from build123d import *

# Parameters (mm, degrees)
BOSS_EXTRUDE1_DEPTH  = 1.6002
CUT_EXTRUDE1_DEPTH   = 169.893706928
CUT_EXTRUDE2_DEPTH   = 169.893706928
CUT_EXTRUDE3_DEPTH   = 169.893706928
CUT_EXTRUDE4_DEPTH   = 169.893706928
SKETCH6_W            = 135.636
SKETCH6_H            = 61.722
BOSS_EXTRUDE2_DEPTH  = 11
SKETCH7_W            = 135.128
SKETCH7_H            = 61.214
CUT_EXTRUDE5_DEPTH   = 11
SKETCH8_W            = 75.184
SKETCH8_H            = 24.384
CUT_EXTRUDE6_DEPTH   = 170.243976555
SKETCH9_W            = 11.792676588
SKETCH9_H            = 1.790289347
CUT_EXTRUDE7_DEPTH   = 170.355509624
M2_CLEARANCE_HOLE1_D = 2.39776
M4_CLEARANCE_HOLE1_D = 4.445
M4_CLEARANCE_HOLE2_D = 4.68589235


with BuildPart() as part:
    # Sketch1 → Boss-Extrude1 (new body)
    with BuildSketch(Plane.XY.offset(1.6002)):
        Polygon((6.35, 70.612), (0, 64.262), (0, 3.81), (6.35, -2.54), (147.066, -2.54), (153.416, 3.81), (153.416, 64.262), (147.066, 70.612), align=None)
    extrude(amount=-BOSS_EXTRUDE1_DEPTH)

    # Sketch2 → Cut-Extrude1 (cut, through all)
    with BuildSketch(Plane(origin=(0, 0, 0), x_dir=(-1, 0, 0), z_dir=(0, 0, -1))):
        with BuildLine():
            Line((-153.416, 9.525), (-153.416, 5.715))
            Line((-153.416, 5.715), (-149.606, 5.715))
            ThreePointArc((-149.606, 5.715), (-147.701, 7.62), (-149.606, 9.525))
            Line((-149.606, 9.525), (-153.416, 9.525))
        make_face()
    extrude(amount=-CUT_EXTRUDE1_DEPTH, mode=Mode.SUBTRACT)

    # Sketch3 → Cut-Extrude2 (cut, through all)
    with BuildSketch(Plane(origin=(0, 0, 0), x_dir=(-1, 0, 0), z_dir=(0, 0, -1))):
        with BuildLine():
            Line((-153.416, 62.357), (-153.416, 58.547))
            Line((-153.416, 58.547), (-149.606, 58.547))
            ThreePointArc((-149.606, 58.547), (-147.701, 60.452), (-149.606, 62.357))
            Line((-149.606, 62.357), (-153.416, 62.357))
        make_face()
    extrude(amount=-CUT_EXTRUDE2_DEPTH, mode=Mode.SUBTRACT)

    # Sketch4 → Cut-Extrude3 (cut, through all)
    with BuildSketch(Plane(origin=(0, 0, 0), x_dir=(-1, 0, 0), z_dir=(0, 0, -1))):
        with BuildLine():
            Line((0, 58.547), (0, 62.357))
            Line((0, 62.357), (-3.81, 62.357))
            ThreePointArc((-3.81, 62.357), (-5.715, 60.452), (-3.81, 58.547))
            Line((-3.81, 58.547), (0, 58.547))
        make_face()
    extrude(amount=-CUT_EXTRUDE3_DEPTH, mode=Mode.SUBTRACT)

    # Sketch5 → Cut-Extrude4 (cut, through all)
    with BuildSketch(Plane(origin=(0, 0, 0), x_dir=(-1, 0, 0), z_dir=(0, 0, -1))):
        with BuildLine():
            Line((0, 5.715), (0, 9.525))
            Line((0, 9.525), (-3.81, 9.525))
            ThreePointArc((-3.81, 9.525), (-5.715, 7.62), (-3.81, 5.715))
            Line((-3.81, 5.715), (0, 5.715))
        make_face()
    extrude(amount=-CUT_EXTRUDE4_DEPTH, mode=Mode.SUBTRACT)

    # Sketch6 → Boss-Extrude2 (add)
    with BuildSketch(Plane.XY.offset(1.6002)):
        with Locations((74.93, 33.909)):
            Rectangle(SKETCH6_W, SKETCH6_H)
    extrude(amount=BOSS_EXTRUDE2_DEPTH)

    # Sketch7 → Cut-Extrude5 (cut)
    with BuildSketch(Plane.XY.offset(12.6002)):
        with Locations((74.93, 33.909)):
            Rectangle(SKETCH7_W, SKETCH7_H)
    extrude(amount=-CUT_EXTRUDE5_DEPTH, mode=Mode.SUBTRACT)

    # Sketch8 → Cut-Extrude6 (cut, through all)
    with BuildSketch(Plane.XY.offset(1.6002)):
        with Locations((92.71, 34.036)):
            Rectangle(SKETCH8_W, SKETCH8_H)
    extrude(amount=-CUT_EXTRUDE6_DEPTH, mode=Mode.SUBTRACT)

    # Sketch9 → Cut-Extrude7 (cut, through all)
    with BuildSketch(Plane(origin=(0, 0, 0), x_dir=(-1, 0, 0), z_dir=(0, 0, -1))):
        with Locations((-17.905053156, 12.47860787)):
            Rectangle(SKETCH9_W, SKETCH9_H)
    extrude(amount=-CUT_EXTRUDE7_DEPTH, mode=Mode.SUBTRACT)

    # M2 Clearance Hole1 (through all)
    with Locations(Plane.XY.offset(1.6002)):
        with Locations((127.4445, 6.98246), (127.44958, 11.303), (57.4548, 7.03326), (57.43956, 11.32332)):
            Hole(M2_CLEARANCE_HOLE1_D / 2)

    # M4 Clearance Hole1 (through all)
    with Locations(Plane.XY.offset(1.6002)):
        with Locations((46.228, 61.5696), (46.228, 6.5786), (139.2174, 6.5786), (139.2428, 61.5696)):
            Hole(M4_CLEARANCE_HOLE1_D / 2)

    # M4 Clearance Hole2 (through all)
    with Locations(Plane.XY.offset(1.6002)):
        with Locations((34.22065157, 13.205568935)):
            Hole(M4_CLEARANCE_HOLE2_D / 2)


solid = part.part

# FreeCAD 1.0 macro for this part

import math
import FreeCAD as App
import Part
import Sketcher
Q = App.Units.Quantity

doc = App.newDocument("Part")
body = doc.addObject("PartDesign::Body", "Body")

# Sketch on XY plane
sketch1 = body.newObject("Sketcher::SketchObject", "Sketch")
sketch1.AttachmentSupport = (doc.getObject("XY_Plane"), [""])
sketch1.MapMode = "FlatFace"
sketch1.AttachmentOffset = App.Placement(App.Vector(0, 0, 0.063 * 25.4), App.Rotation())
sketch1.addGeometry(Part.LineSegment(App.Vector(6, 71, 0), App.Vector(0, 64, 0)), False)
sketch1.addGeometry(Part.LineSegment(App.Vector(0, 64, 0), App.Vector(0, 4, 0)), False)
sketch1.addGeometry(Part.LineSegment(App.Vector(0, 4, 0), App.Vector(6, -3, 0)), False)
sketch1.addGeometry(Part.LineSegment(App.Vector(6, -3, 0), App.Vector(147, -3, 0)), False)
sketch1.addGeometry(Part.LineSegment(App.Vector(147, -3, 0), App.Vector(153, 4, 0)), False)
sketch1.addGeometry(Part.LineSegment(App.Vector(153, 4, 0), App.Vector(153, 64, 0)), False)
sketch1.addGeometry(Part.LineSegment(App.Vector(153, 64, 0), App.Vector(147, 71, 0)), False)
sketch1.addGeometry(Part.LineSegment(App.Vector(147, 71, 0), App.Vector(6, 71, 0)), False)
sketch1.addConstraint(Sketcher.Constraint("Coincident", 0, 2, 1, 1))
sketch1.addConstraint(Sketcher.Constraint("Coincident", 1, 2, 2, 1))
sketch1.addConstraint(Sketcher.Constraint("Coincident", 2, 2, 3, 1))
sketch1.addConstraint(Sketcher.Constraint("Coincident", 3, 2, 4, 1))
sketch1.addConstraint(Sketcher.Constraint("Coincident", 4, 2, 5, 1))
sketch1.addConstraint(Sketcher.Constraint("Coincident", 5, 2, 6, 1))
sketch1.addConstraint(Sketcher.Constraint("Coincident", 6, 2, 7, 1))
sketch1.addConstraint(Sketcher.Constraint("Coincident", 7, 2, 0, 1))
sketch1.addConstraint(Sketcher.Constraint("Vertical", 1))
sketch1.addConstraint(Sketcher.Constraint("Horizontal", 3))
sketch1.addConstraint(Sketcher.Constraint("Vertical", 5))
sketch1.addConstraint(Sketcher.Constraint("Horizontal", 7))
sketch1.addConstraint(Sketcher.Constraint("PointOnObject", 0, 2, -2))
sketch1.addConstraint(Sketcher.Constraint("Perpendicular", 0, 2))
sketch1.addConstraint(Sketcher.Constraint("Perpendicular", 2, 4))
sketch1.addConstraint(Sketcher.Constraint("Perpendicular", 4, 6))
sketch1.addConstraint(Sketcher.Constraint("Horizontal", 1, 2, 4, 2))
sketch1.addConstraint(Sketcher.Constraint("Horizontal", 0, 2, 5, 2))
sketch1.addConstraint(Sketcher.Constraint("Vertical", 3, 2, 6, 2))
sketch1.addConstraint(Sketcher.Constraint("Vertical", 2, 2, 7, 2))
sketch1.addConstraint(Sketcher.Constraint("DistanceX", 3, 1, 3, 2, Q("5.54 in")))
sketch1.addConstraint(Sketcher.Constraint("DistanceY", 1, 2, 1, 1, Q("2.38 in")))
sketch1.addConstraint(Sketcher.Constraint("DistanceY", 2, 2, -1, 1, Q("0.1 in")))
sketch1.addConstraint(Sketcher.Constraint("DistanceY", -1, 1, 0, 2, Q("2.53 in")))
pad1 = body.newObject("PartDesign::Pad", "Pad")
pad1.Profile = sketch1
pad1.Length = Q("0.063 in")
pad1.Reversed = True

# Sketch on XY plane
sketch2 = body.newObject("Sketcher::SketchObject", "Sketch001")
sketch2.AttachmentSupport = (doc.getObject("XY_Plane"), [""])
sketch2.MapMode = "FlatFace"
sketch2.addGeometry(Part.LineSegment(App.Vector(153.4, 9.5, 0), App.Vector(153.4, 5.7, 0)), False)
sketch2.addGeometry(Part.LineSegment(App.Vector(153.4, 5.7, 0), App.Vector(149.6, 5.7, 0)), False)
sketch2.addGeometry(Part.ArcOfCircle(Part.Circle(App.Vector(149.6, 7.6, 0), App.Vector(0, 0, 1), 1.9), math.radians(90), math.radians(270)), False)
sketch2.addGeometry(Part.LineSegment(App.Vector(149.6, 9.5, 0), App.Vector(153.4, 9.5, 0)), False)
sketch2.addConstraint(Sketcher.Constraint("Coincident", 0, 2, 1, 1))
sketch2.addConstraint(Sketcher.Constraint("Tangent", 1, 2, 2, 2))
sketch2.addConstraint(Sketcher.Constraint("Tangent", 2, 1, 3, 1))
sketch2.addConstraint(Sketcher.Constraint("Coincident", 3, 2, 0, 1))
sketch2.addConstraint(Sketcher.Constraint("Vertical", 0))
sketch2.addConstraint(Sketcher.Constraint("Horizontal", 1))
sketch2.addConstraint(Sketcher.Constraint("Horizontal", 3))
sketch2.addConstraint(Sketcher.Constraint("Equal", 3, 0))
sketch2.addConstraint(Sketcher.Constraint("Radius", 2, Q("0.075 in")))
sketch2.addConstraint(Sketcher.Constraint("DistanceY", -1, 1, 2, 3, Q("0.3 in")))
sketch2.addConstraint(Sketcher.Constraint("DistanceX", -1, 1, 2, 3, Q("5.89 in")))
pocket1 = body.newObject("PartDesign::Pocket", "Pocket")
pocket1.Profile = sketch2
pocket1.Type = "ThroughAll"
pocket1.Reversed = True

# Sketch on XY plane
sketch3 = body.newObject("Sketcher::SketchObject", "Sketch002")
sketch3.AttachmentSupport = (doc.getObject("XY_Plane"), [""])
sketch3.MapMode = "FlatFace"
sketch3.addGeometry(Part.LineSegment(App.Vector(153.4, 62.4, 0), App.Vector(153.4, 58.5, 0)), False)
sketch3.addGeometry(Part.LineSegment(App.Vector(153.4, 58.5, 0), App.Vector(149.6, 58.5, 0)), False)
sketch3.addGeometry(Part.ArcOfCircle(Part.Circle(App.Vector(149.6, 60.5, 0), App.Vector(0, 0, 1), 1.9), math.radians(90), math.radians(270)), False)
sketch3.addGeometry(Part.LineSegment(App.Vector(149.6, 62.4, 0), App.Vector(153.4, 62.4, 0)), False)
sketch3.addConstraint(Sketcher.Constraint("Coincident", 0, 2, 1, 1))
sketch3.addConstraint(Sketcher.Constraint("Tangent", 1, 2, 2, 2))
sketch3.addConstraint(Sketcher.Constraint("Tangent", 2, 1, 3, 1))
sketch3.addConstraint(Sketcher.Constraint("Coincident", 3, 2, 0, 1))
sketch3.addConstraint(Sketcher.Constraint("Vertical", 0))
sketch3.addConstraint(Sketcher.Constraint("Horizontal", 1))
sketch3.addConstraint(Sketcher.Constraint("Horizontal", 3))
sketch3.addConstraint(Sketcher.Constraint("Equal", 3, 0))
sketch3.addConstraint(Sketcher.Constraint("Radius", 2, Q("0.075 in")))
sketch3.addConstraint(Sketcher.Constraint("DistanceX", -1, 1, 2, 3, Q("5.89 in")))
sketch3.addConstraint(Sketcher.Constraint("DistanceY", -1, 1, 2, 3, Q("2.38 in")))
pocket2 = body.newObject("PartDesign::Pocket", "Pocket001")
pocket2.Profile = sketch3
pocket2.Type = "ThroughAll"
pocket2.Reversed = True

# Sketch on XY plane
sketch4 = body.newObject("Sketcher::SketchObject", "Sketch003")
sketch4.AttachmentSupport = (doc.getObject("XY_Plane"), [""])
sketch4.MapMode = "FlatFace"
sketch4.addGeometry(Part.LineSegment(App.Vector(0, 58.5, 0), App.Vector(0, 62.4, 0)), False)
sketch4.addGeometry(Part.LineSegment(App.Vector(0, 62.4, 0), App.Vector(3.8, 62.4, 0)), False)
sketch4.addGeometry(Part.ArcOfCircle(Part.Circle(App.Vector(3.8, 60.5, 0), App.Vector(0, 0, 1), 1.9), math.radians(-90), math.radians(90)), False)
sketch4.addGeometry(Part.LineSegment(App.Vector(3.8, 58.5, 0), App.Vector(0, 58.5, 0)), False)
sketch4.addConstraint(Sketcher.Constraint("Coincident", 0, 2, 1, 1))
sketch4.addConstraint(Sketcher.Constraint("Tangent", 1, 2, 2, 2))
sketch4.addConstraint(Sketcher.Constraint("Tangent", 2, 1, 3, 1))
sketch4.addConstraint(Sketcher.Constraint("Coincident", 3, 2, 0, 1))
sketch4.addConstraint(Sketcher.Constraint("Vertical", 0))
sketch4.addConstraint(Sketcher.Constraint("Horizontal", 1))
sketch4.addConstraint(Sketcher.Constraint("Horizontal", 3))
sketch4.addConstraint(Sketcher.Constraint("PointOnObject", 0, 2, -2))
sketch4.addConstraint(Sketcher.Constraint("Equal", 3, 0))
sketch4.addConstraint(Sketcher.Constraint("Radius", 2, Q("0.075 in")))
sketch4.addConstraint(Sketcher.Constraint("DistanceY", -1, 1, 2, 3, Q("2.38 in")))
pocket3 = body.newObject("PartDesign::Pocket", "Pocket002")
pocket3.Profile = sketch4
pocket3.Type = "ThroughAll"
pocket3.Reversed = True

# Sketch on XY plane
sketch5 = body.newObject("Sketcher::SketchObject", "Sketch004")
sketch5.AttachmentSupport = (doc.getObject("XY_Plane"), [""])
sketch5.MapMode = "FlatFace"
sketch5.addGeometry(Part.LineSegment(App.Vector(0, 5.7, 0), App.Vector(0, 9.5, 0)), False)
sketch5.addGeometry(Part.LineSegment(App.Vector(0, 9.5, 0), App.Vector(3.8, 9.5, 0)), False)
sketch5.addGeometry(Part.ArcOfCircle(Part.Circle(App.Vector(3.8, 7.6, 0), App.Vector(0, 0, 1), 1.9), math.radians(-90), math.radians(90)), False)
sketch5.addGeometry(Part.LineSegment(App.Vector(3.8, 5.7, 0), App.Vector(0, 5.7, 0)), False)
sketch5.addConstraint(Sketcher.Constraint("Coincident", 0, 2, 1, 1))
sketch5.addConstraint(Sketcher.Constraint("Tangent", 1, 2, 2, 2))
sketch5.addConstraint(Sketcher.Constraint("Tangent", 2, 1, 3, 1))
sketch5.addConstraint(Sketcher.Constraint("Coincident", 3, 2, 0, 1))
sketch5.addConstraint(Sketcher.Constraint("Vertical", 0))
sketch5.addConstraint(Sketcher.Constraint("Horizontal", 1))
sketch5.addConstraint(Sketcher.Constraint("Horizontal", 3))
sketch5.addConstraint(Sketcher.Constraint("PointOnObject", 0, 2, -2))
sketch5.addConstraint(Sketcher.Constraint("Equal", 3, 0))
sketch5.addConstraint(Sketcher.Constraint("Radius", 2, Q("0.075 in")))
sketch5.addConstraint(Sketcher.Constraint("DistanceY", -1, 1, 2, 3, Q("0.3 in")))
pocket4 = body.newObject("PartDesign::Pocket", "Pocket003")
pocket4.Profile = sketch5
pocket4.Type = "ThroughAll"
pocket4.Reversed = True

# Sketch on XY plane
sketch6 = body.newObject("Sketcher::SketchObject", "Sketch005")
sketch6.AttachmentSupport = (doc.getObject("XY_Plane"), [""])
sketch6.MapMode = "FlatFace"
sketch6.AttachmentOffset = App.Placement(App.Vector(0, 0, 0.063 * 25.4), App.Rotation())
sketch6.addGeometry(Part.LineSegment(App.Vector(7, 65, 0), App.Vector(7, 3, 0)), False)
sketch6.addGeometry(Part.LineSegment(App.Vector(7, 3, 0), App.Vector(143, 3, 0)), False)
sketch6.addGeometry(Part.LineSegment(App.Vector(143, 3, 0), App.Vector(143, 65, 0)), False)
sketch6.addGeometry(Part.LineSegment(App.Vector(143, 65, 0), App.Vector(7, 65, 0)), False)
sketch6.addConstraint(Sketcher.Constraint("Coincident", 0, 2, 1, 1))
sketch6.addConstraint(Sketcher.Constraint("Coincident", 1, 2, 2, 1))
sketch6.addConstraint(Sketcher.Constraint("Coincident", 2, 2, 3, 1))
sketch6.addConstraint(Sketcher.Constraint("Coincident", 3, 2, 0, 1))
sketch6.addConstraint(Sketcher.Constraint("Vertical", 0))
sketch6.addConstraint(Sketcher.Constraint("Horizontal", 1))
sketch6.addConstraint(Sketcher.Constraint("Vertical", 2))
sketch6.addConstraint(Sketcher.Constraint("Horizontal", 3))
sketch6.addConstraint(Sketcher.Constraint("DistanceX", 1, 1, 1, 2, Q("5.34 in")))
sketch6.addConstraint(Sketcher.Constraint("DistanceY", 0, 2, 0, 1, Q("2.43 in")))
sketch6.addConstraint(Sketcher.Constraint("DistanceX", -1, 1, 0, 2, Q("0.28 in")))
sketch6.addConstraint(Sketcher.Constraint("DistanceY", -1, 1, 0, 2, Q("0.12 in")))
pad2 = body.newObject("PartDesign::Pad", "Pad001")
pad2.Profile = sketch6
pad2.Length = 11

# Sketch on XY plane
sketch7 = body.newObject("Sketcher::SketchObject", "Sketch006")
sketch7.AttachmentSupport = (doc.getObject("XY_Plane"), [""])
sketch7.MapMode = "FlatFace"
sketch7.AttachmentOffset = App.Placement(App.Vector(0, 0, 12.6002), App.Rotation())
sketch7.addGeometry(Part.LineSegment(App.Vector(7, 65, 0), App.Vector(7, 3, 0)), False)
sketch7.addGeometry(Part.LineSegment(App.Vector(7, 3, 0), App.Vector(142, 3, 0)), False)
sketch7.addGeometry(Part.LineSegment(App.Vector(142, 3, 0), App.Vector(142, 65, 0)), False)
sketch7.addGeometry(Part.LineSegment(App.Vector(142, 65, 0), App.Vector(7, 65, 0)), False)
sketch7.addConstraint(Sketcher.Constraint("Coincident", 0, 2, 1, 1))
sketch7.addConstraint(Sketcher.Constraint("Coincident", 1, 2, 2, 1))
sketch7.addConstraint(Sketcher.Constraint("Coincident", 2, 2, 3, 1))
sketch7.addConstraint(Sketcher.Constraint("Coincident", 3, 2, 0, 1))
sketch7.addConstraint(Sketcher.Constraint("Vertical", 0))
sketch7.addConstraint(Sketcher.Constraint("Horizontal", 1))
sketch7.addConstraint(Sketcher.Constraint("Vertical", 2))
sketch7.addConstraint(Sketcher.Constraint("Horizontal", 3))
sketch7.addConstraint(Sketcher.Constraint("DistanceX", 1, 1, 1, 2, Q("5.32 in")))
sketch7.addConstraint(Sketcher.Constraint("DistanceY", 0, 2, 0, 1, Q("2.41 in")))
sketch7.addConstraint(Sketcher.Constraint("DistanceX", -1, 1, 0, 2, Q("0.29 in")))
sketch7.addConstraint(Sketcher.Constraint("DistanceY", -1, 1, 0, 2, Q("0.13 in")))
pocket5 = body.newObject("PartDesign::Pocket", "Pocket004")
pocket5.Profile = sketch7
pocket5.Length = 11

# Sketch on XY plane
sketch8 = body.newObject("Sketcher::SketchObject", "Sketch007")
sketch8.AttachmentSupport = (doc.getObject("XY_Plane"), [""])
sketch8.MapMode = "FlatFace"
sketch8.AttachmentOffset = App.Placement(App.Vector(0, 0, 0.063 * 25.4), App.Rotation())
sketch8.addGeometry(Part.LineSegment(App.Vector(55, 46, 0), App.Vector(55, 22, 0)), False)
sketch8.addGeometry(Part.LineSegment(App.Vector(55, 22, 0), App.Vector(130, 22, 0)), False)
sketch8.addGeometry(Part.LineSegment(App.Vector(130, 22, 0), App.Vector(130, 46, 0)), False)
sketch8.addGeometry(Part.LineSegment(App.Vector(130, 46, 0), App.Vector(55, 46, 0)), False)
sketch8.addConstraint(Sketcher.Constraint("Coincident", 0, 2, 1, 1))
sketch8.addConstraint(Sketcher.Constraint("Coincident", 1, 2, 2, 1))
sketch8.addConstraint(Sketcher.Constraint("Coincident", 2, 2, 3, 1))
sketch8.addConstraint(Sketcher.Constraint("Coincident", 3, 2, 0, 1))
sketch8.addConstraint(Sketcher.Constraint("Vertical", 0))
sketch8.addConstraint(Sketcher.Constraint("Horizontal", 1))
sketch8.addConstraint(Sketcher.Constraint("Vertical", 2))
sketch8.addConstraint(Sketcher.Constraint("Horizontal", 3))
sketch8.addConstraint(Sketcher.Constraint("DistanceX", 1, 1, 1, 2, Q("2.96 in")))
sketch8.addConstraint(Sketcher.Constraint("DistanceY", 0, 2, 0, 1, Q("0.96 in")))
sketch8.addConstraint(Sketcher.Constraint("DistanceX", -1, 1, 0, 2, Q("2.17 in")))
sketch8.addConstraint(Sketcher.Constraint("DistanceY", -1, 1, 0, 2, Q("0.86 in")))
pocket6 = body.newObject("PartDesign::Pocket", "Pocket005")
pocket6.Profile = sketch8
pocket6.Type = "ThroughAll"

# Sketch on XY plane
sketch9 = body.newObject("Sketcher::SketchObject", "Sketch008")
sketch9.AttachmentSupport = (doc.getObject("XY_Plane"), [""])
sketch9.MapMode = "FlatFace"
sketch9.addGeometry(Part.LineSegment(App.Vector(23.8, 13.4, 0), App.Vector(23.8, 11.6, 0)), False)
sketch9.addGeometry(Part.LineSegment(App.Vector(23.8, 11.6, 0), App.Vector(12, 11.6, 0)), False)
sketch9.addGeometry(Part.LineSegment(App.Vector(12, 11.6, 0), App.Vector(12, 13.4, 0)), False)
sketch9.addGeometry(Part.LineSegment(App.Vector(12, 13.4, 0), App.Vector(23.8, 13.4, 0)), False)
sketch9.addConstraint(Sketcher.Constraint("Coincident", 0, 2, 1, 1))
sketch9.addConstraint(Sketcher.Constraint("Coincident", 1, 2, 2, 1))
sketch9.addConstraint(Sketcher.Constraint("Coincident", 2, 2, 3, 1))
sketch9.addConstraint(Sketcher.Constraint("Coincident", 3, 2, 0, 1))
sketch9.addConstraint(Sketcher.Constraint("Vertical", 0))
sketch9.addConstraint(Sketcher.Constraint("Horizontal", 1))
sketch9.addConstraint(Sketcher.Constraint("Vertical", 2))
sketch9.addConstraint(Sketcher.Constraint("Horizontal", 3))
sketch9.addConstraint(Sketcher.Constraint("DistanceY", 0, 2, 0, 1, 1.790289))
sketch9.addConstraint(Sketcher.Constraint("DistanceX", 1, 2, 1, 1, 11.792677))
sketch9.addConstraint(Sketcher.Constraint("DistanceX", -1, 1, 0, 2, 23.801391))
sketch9.addConstraint(Sketcher.Constraint("DistanceY", -1, 1, 0, 2, 11.583463))
pocket7 = body.newObject("PartDesign::Pocket", "Pocket006")
pocket7.Profile = sketch9
pocket7.Type = "ThroughAll"
pocket7.Reversed = True

# Sketch on XY plane
sketch10 = body.newObject("Sketcher::SketchObject", "Sketch009")
sketch10.AttachmentSupport = (doc.getObject("XY_Plane"), [""])
sketch10.MapMode = "FlatFace"
sketch10.AttachmentOffset = App.Placement(App.Vector(0, 0, 0.063 * 25.4), App.Rotation())
sketch10.addGeometry(Part.Circle(App.Vector(127.4, 7, 0), App.Vector(0, 0, 1), 1.2), False)
sketch10.addGeometry(Part.Circle(App.Vector(127.4, 11.3, 0), App.Vector(0, 0, 1), 1.2), False)
sketch10.addGeometry(Part.Circle(App.Vector(57.5, 7, 0), App.Vector(0, 0, 1), 1.2), False)
sketch10.addGeometry(Part.Circle(App.Vector(57.4, 11.3, 0), App.Vector(0, 0, 1), 1.2), False)
sketch10.addConstraint(Sketcher.Constraint("Equal", 0, 1))
sketch10.addConstraint(Sketcher.Constraint("Equal", 1, 2))
sketch10.addConstraint(Sketcher.Constraint("Equal", 2, 3))
sketch10.addConstraint(Sketcher.Constraint("Diameter", 0, Q("0.0944 in")))
sketch10.addConstraint(Sketcher.Constraint("DistanceY", -1, 1, 1, 3, Q("0.445 in")))
sketch10.addConstraint(Sketcher.Constraint("DistanceX", -1, 1, 2, 3, Q("2.262 in")))
sketch10.addConstraint(Sketcher.Constraint("DistanceY", 0, 3, 2, 3, Q("0.002 in")))
sketch10.addConstraint(Sketcher.Constraint("DistanceX", -1, 1, 0, 3, Q("5.0175 in")))
sketch10.addConstraint(Sketcher.Constraint("DistanceY", -1, 1, 0, 3, Q("0.2749 in")))
sketch10.addConstraint(Sketcher.Constraint("DistanceX", -1, 1, 1, 3, Q("5.0177 in")))
sketch10.addConstraint(Sketcher.Constraint("DistanceX", -1, 1, 3, 3, Q("2.2614 in")))
sketch10.addConstraint(Sketcher.Constraint("DistanceY", -1, 1, 3, 3, Q("0.4458 in")))
doc.recompute()
hole = body.newObject("PartDesign::Hole", "Hole")
hole.Profile = sketch10
hole.ThreadType = "None"
hole.Diameter = Q("0.0944 in")
hole.DepthType = "ThroughAll"

# Sketch on XY plane
sketch11 = body.newObject("Sketcher::SketchObject", "Sketch010")
sketch11.AttachmentSupport = (doc.getObject("XY_Plane"), [""])
sketch11.MapMode = "FlatFace"
sketch11.AttachmentOffset = App.Placement(App.Vector(0, 0, 0.063 * 25.4), App.Rotation())
sketch11.addGeometry(Part.Circle(App.Vector(46.2, 61.6, 0), App.Vector(0, 0, 1), 2.2), False)
sketch11.addGeometry(Part.Circle(App.Vector(46.2, 6.6, 0), App.Vector(0, 0, 1), 2.2), False)
sketch11.addGeometry(Part.Circle(App.Vector(139.2, 6.6, 0), App.Vector(0, 0, 1), 2.2), False)
sketch11.addGeometry(Part.Circle(App.Vector(139.2, 61.6, 0), App.Vector(0, 0, 1), 2.2), False)
sketch11.addConstraint(Sketcher.Constraint("Equal", 0, 1))
sketch11.addConstraint(Sketcher.Constraint("Equal", 1, 2))
sketch11.addConstraint(Sketcher.Constraint("Equal", 2, 3))
sketch11.addConstraint(Sketcher.Constraint("Horizontal", 1, 3, 2, 3))
sketch11.addConstraint(Sketcher.Constraint("Horizontal", 0, 3, 3, 3))
sketch11.addConstraint(Sketcher.Constraint("Vertical", 0, 3, 1, 3))
sketch11.addConstraint(Sketcher.Constraint("Diameter", 0, Q("0.175 in")))
sketch11.addConstraint(Sketcher.Constraint("DistanceX", -1, 1, 0, 3, Q("1.82 in")))
sketch11.addConstraint(Sketcher.Constraint("DistanceY", -1, 1, 0, 3, Q("2.424 in")))
sketch11.addConstraint(Sketcher.Constraint("DistanceY", -1, 1, 1, 3, Q("0.259 in")))
sketch11.addConstraint(Sketcher.Constraint("DistanceX", -1, 1, 2, 3, Q("5.481 in")))
sketch11.addConstraint(Sketcher.Constraint("DistanceX", -1, 1, 3, 3, Q("5.482 in")))
doc.recompute()
hole2 = body.newObject("PartDesign::Hole", "Hole001")
hole2.Profile = sketch11
hole2.ThreadType = "None"
hole2.Diameter = Q("0.175 in")
hole2.DepthType = "ThroughAll"

# Sketch on XY plane
sketch12 = body.newObject("Sketcher::SketchObject", "Sketch011")
sketch12.AttachmentSupport = (doc.getObject("XY_Plane"), [""])
sketch12.MapMode = "FlatFace"
sketch12.AttachmentOffset = App.Placement(App.Vector(0, 0, 0.063 * 25.4), App.Rotation())
sketch12.addGeometry(Part.Circle(App.Vector(34.2, 13.2, 0), App.Vector(0, 0, 1), 2.3), False)
sketch12.addConstraint(Sketcher.Constraint("Diameter", 0, 4.685892))
sketch12.addConstraint(Sketcher.Constraint("DistanceX", -1, 1, 0, 3, 34.220652))
sketch12.addConstraint(Sketcher.Constraint("DistanceY", -1, 1, 0, 3, 13.205569))
doc.recompute()
hole3 = body.newObject("PartDesign::Hole", "Hole002")
hole3.Profile = sketch12
hole3.ThreadType = "None"
hole3.Diameter = 4.685892
hole3.DepthType = "ThroughAll"

doc.recompute()
